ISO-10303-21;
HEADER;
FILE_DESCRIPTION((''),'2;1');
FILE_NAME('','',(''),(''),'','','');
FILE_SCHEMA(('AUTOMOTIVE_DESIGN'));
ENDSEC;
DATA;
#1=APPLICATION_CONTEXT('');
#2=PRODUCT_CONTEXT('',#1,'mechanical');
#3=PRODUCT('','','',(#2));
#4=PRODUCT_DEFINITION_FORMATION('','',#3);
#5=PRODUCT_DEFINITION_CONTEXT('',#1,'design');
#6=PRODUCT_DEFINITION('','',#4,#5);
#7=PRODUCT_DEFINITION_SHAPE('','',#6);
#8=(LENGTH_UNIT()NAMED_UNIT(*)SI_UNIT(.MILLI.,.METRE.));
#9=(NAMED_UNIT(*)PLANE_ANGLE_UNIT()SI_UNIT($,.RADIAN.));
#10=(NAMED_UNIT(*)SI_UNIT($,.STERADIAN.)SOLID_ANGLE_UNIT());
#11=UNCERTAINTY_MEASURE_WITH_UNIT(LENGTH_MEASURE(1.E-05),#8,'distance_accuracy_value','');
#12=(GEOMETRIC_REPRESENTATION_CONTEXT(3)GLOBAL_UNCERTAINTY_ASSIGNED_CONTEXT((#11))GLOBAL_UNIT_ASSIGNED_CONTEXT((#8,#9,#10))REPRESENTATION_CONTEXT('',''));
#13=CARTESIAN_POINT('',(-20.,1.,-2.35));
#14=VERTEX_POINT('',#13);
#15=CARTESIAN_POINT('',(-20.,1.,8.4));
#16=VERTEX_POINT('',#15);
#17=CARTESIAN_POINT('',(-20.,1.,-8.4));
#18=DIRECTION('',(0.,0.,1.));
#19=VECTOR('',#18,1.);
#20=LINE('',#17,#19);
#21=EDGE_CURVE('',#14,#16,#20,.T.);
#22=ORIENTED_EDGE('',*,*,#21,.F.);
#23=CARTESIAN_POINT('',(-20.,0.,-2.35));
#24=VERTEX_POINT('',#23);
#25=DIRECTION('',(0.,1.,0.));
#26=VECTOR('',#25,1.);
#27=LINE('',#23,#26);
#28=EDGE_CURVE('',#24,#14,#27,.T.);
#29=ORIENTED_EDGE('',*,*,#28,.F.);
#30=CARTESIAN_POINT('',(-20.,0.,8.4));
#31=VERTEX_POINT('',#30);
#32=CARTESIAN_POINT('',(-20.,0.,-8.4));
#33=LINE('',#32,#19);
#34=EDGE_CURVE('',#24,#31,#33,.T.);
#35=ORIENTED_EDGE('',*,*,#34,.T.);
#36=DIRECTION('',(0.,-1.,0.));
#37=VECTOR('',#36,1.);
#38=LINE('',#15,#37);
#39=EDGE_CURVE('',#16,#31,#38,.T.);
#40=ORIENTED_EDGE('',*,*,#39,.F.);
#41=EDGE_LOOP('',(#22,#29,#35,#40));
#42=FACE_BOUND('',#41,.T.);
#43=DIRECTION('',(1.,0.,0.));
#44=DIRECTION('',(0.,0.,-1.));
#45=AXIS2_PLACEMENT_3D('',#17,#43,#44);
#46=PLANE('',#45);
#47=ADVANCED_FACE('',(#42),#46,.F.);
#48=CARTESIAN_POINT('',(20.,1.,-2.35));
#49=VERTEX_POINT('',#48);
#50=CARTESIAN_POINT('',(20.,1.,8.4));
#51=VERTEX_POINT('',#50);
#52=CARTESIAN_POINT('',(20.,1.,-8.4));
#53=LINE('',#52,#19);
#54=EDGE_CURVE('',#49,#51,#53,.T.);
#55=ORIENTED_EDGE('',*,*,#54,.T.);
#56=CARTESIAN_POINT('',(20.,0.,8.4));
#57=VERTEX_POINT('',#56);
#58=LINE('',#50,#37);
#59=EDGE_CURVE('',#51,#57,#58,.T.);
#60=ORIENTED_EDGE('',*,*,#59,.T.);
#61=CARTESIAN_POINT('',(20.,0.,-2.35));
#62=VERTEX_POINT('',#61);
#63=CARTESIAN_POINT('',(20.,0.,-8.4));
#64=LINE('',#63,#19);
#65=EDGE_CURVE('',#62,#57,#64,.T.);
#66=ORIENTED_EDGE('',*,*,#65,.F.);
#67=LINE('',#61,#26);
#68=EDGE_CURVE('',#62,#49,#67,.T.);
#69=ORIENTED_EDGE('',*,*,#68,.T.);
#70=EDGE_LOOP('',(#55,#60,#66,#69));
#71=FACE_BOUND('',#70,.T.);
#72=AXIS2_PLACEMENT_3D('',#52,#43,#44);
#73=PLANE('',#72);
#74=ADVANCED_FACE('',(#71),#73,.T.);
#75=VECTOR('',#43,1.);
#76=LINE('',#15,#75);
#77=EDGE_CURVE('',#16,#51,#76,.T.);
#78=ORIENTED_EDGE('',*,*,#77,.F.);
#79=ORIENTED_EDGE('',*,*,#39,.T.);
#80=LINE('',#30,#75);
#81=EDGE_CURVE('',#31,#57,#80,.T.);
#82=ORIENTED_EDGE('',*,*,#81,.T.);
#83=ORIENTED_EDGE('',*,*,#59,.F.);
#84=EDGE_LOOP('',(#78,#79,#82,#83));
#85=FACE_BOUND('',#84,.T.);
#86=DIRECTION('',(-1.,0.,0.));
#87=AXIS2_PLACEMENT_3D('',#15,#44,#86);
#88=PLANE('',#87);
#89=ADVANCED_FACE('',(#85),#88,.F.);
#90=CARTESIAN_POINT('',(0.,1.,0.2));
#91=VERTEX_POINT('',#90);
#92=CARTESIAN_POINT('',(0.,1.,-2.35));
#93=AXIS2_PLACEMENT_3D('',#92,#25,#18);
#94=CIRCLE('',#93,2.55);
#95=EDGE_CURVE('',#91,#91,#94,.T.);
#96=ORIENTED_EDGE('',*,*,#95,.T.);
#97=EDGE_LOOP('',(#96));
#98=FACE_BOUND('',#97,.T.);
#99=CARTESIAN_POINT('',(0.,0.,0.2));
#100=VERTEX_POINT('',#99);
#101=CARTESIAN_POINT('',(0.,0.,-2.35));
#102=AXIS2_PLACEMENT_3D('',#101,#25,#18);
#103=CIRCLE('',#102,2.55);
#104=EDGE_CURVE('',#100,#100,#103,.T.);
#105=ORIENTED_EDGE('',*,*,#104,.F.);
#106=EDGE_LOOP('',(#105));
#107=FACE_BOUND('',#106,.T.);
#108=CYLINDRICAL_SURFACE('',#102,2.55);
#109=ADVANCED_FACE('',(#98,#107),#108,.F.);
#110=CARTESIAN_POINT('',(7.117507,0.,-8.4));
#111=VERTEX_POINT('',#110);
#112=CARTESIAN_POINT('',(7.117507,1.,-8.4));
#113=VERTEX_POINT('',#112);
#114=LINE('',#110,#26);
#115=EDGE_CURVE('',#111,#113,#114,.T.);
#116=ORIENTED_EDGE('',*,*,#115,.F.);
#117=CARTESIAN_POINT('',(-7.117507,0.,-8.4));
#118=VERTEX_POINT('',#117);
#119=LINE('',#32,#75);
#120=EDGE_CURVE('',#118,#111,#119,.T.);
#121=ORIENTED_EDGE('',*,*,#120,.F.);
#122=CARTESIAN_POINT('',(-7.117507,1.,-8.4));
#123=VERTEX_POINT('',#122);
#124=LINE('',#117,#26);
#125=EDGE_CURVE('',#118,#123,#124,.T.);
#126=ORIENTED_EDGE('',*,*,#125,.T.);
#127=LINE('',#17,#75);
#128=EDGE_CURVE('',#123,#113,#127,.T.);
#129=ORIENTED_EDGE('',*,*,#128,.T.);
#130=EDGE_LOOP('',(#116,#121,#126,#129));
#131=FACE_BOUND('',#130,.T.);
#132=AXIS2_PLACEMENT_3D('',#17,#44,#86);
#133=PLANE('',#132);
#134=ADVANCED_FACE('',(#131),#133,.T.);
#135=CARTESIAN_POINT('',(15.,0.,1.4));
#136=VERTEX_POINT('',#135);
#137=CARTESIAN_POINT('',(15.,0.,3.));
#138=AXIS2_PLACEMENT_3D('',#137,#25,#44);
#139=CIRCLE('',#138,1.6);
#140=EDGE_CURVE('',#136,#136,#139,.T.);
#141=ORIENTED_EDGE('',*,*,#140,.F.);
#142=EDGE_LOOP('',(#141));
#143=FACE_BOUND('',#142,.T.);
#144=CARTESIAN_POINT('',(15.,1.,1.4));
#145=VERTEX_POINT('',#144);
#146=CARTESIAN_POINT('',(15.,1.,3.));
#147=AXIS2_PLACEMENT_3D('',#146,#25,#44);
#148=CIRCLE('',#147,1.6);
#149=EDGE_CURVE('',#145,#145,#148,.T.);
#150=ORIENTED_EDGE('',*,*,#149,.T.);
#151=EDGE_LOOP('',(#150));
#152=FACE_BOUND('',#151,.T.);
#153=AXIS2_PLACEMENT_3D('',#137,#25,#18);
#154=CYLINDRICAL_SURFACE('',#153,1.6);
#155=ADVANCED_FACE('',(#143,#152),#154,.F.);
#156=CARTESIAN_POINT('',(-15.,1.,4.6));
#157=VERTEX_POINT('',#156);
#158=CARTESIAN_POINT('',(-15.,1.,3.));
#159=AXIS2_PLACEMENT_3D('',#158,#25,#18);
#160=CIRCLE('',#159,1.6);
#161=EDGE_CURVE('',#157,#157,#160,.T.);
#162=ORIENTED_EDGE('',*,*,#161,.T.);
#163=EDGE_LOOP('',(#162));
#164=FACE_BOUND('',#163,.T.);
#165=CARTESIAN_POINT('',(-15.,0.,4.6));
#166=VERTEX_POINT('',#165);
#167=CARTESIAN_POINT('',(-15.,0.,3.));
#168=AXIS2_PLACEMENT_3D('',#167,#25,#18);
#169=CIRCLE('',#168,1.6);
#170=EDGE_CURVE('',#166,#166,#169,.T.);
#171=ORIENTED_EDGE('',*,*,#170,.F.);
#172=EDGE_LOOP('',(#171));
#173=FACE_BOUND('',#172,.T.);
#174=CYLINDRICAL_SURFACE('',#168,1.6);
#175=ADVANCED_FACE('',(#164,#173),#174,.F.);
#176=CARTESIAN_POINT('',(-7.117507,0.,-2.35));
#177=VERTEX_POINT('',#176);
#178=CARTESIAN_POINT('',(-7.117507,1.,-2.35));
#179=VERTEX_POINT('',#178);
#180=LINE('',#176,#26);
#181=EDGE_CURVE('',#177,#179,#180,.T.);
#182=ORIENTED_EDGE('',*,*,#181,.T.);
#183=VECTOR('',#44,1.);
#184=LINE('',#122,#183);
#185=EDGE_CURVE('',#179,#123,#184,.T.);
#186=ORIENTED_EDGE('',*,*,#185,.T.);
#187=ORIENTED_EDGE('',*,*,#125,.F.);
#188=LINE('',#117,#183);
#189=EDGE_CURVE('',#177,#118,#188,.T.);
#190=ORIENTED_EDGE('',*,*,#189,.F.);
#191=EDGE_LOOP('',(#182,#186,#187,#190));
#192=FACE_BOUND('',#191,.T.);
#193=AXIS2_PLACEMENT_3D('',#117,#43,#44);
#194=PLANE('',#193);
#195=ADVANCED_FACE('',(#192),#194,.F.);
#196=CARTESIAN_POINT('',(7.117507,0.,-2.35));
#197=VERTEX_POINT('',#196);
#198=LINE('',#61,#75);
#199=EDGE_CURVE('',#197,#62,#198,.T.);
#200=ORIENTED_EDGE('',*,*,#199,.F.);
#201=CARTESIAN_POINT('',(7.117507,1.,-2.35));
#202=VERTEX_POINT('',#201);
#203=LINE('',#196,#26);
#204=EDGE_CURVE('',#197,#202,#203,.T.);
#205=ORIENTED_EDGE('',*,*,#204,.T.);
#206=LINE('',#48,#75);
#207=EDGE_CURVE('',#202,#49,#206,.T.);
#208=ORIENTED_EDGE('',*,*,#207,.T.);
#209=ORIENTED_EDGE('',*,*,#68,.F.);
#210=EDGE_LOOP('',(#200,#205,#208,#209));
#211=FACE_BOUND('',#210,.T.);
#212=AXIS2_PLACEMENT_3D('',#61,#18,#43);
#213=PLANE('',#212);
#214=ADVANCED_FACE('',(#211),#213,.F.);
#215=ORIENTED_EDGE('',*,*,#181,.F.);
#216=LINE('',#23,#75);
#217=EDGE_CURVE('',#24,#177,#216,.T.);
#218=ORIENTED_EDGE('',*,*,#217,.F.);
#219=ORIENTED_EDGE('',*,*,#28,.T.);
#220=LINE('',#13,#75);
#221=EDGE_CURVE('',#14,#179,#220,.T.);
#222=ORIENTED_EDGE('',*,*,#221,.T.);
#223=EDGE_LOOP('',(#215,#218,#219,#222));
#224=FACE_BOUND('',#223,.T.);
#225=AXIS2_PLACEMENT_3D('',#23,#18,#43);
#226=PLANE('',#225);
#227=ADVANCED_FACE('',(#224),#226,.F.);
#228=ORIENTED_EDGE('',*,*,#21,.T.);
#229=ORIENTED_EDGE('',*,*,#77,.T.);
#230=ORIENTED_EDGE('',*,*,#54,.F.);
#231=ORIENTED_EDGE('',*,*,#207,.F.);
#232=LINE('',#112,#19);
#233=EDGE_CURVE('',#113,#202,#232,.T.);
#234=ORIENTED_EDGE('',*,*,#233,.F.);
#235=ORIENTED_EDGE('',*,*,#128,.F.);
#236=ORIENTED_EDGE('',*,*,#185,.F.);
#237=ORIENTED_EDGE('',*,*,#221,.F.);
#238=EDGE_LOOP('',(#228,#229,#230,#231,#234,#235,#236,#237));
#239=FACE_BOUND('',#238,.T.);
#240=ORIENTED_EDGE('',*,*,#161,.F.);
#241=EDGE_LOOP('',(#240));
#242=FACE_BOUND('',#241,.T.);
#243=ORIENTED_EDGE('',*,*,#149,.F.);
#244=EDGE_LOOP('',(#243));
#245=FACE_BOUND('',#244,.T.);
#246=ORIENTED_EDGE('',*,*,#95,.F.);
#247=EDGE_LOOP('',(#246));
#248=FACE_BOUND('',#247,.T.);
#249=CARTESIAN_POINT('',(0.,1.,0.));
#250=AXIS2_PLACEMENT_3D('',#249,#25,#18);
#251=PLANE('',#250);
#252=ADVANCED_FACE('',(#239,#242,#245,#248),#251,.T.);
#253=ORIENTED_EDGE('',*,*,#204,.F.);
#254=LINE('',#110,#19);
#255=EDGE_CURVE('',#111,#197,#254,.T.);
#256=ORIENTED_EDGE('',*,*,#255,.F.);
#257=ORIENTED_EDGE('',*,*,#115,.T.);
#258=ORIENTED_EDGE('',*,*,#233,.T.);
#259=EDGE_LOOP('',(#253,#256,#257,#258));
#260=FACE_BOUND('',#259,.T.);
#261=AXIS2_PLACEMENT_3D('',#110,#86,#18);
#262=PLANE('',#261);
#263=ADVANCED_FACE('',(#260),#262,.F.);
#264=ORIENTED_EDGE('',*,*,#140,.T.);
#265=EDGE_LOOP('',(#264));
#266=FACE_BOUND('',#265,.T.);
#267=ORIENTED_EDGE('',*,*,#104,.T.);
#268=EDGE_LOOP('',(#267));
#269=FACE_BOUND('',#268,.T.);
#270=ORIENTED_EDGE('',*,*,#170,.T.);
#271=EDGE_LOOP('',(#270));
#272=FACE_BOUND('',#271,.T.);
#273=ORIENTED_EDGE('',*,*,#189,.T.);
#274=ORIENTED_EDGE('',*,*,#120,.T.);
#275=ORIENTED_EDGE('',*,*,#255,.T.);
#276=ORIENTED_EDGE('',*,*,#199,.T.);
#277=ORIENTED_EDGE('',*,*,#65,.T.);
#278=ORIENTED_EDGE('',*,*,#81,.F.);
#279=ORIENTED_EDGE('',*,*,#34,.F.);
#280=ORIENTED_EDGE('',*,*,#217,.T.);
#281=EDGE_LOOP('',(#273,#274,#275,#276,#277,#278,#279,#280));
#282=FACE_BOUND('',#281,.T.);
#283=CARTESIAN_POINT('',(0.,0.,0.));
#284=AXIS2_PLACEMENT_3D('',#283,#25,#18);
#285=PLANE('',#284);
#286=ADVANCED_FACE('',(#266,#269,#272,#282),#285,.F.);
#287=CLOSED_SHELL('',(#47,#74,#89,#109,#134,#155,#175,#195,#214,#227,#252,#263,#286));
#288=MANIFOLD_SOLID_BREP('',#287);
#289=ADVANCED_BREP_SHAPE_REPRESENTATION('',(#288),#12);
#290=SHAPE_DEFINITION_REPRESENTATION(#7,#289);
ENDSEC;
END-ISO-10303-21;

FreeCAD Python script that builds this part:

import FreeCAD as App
import Part
import Sketcher
Q = App.Units.Quantity


def add_polygon(sketch, points):
    """Adds a closed chain of lines whose ends are joined by coincident constraints."""
    first, n = sketch.GeometryCount, len(points)
    for a, b in zip(points, points[1:] + points[:1]):
        sketch.addGeometry(Part.LineSegment(App.Vector(*a, 0), App.Vector(*b, 0)), False)
    for i in range(n):
        sketch.addConstraint(Sketcher.Constraint("Coincident", first + i, 2, first + (i + 1) % n, 1))

doc = App.newDocument("Part")
body = doc.addObject("PartDesign::Body", "Body")

# Sketch on XZ plane
sketch1 = body.newObject("Sketcher::SketchObject", "Sketch")
sketch1.AttachmentSupport = (doc.getObject("XZ_Plane"), [""])
sketch1.MapMode = "FlatFace"
add_polygon(sketch1, [(-20, -8), (-20, 8), (20, 8), (20, -8)])  # lines 0-3
sketch1.addConstraint([
    Sketcher.Constraint("Vertical", 0),
    Sketcher.Constraint("Horizontal", 1),
    Sketcher.Constraint("Vertical", 2),
    Sketcher.Constraint("Horizontal", 3),
    Sketcher.Constraint("Symmetric", 0, 2, 2, 2, -1, 1),
    Sketcher.Constraint("DistanceX", 1, 1, 1, 2, Q("40 mm")),
    Sketcher.Constraint("DistanceY", 0, 1, 0, 2, Q("16.8 mm")),
])
pad1 = body.newObject("PartDesign::Pad", "Pad")
pad1.Profile = sketch1
pad1.Length = 1
pad1.Reversed = True

# Sketch on XZ plane
sketch2 = body.newObject("Sketcher::SketchObject", "Sketch001")
sketch2.AttachmentSupport = (doc.getObject("XZ_Plane"), [""])
sketch2.MapMode = "FlatFace"
sketch2.AttachmentOffset = App.Placement(App.Vector(0, 0, -1), App.Rotation())
sketch2.addGeometry(Part.Circle(App.Vector(-15, 3, 0), App.Vector(0, 0, 1), 1.6), False)  # 0
sketch2.addGeometry(Part.Circle(App.Vector(15, 3, 0), App.Vector(0, 0, 1), 1.6), False)  # 1
sketch2.addGeometry(Part.Circle(App.Vector(0, -2.4, 0), App.Vector(0, 0, 1), 2.5), False)  # 2
add_polygon(sketch2, [(7.1, -8.4), (7.1, -2.4), (20, -2.4), (20, -8.4)])  # lines 3-6
add_polygon(sketch2, [(-20, -8.4), (-20, -2.4), (-7.1, -2.4), (-7.1, -8.4)])  # lines 7-10
sketch2.addConstraint([
    Sketcher.Constraint("Vertical", 3),
    Sketcher.Constraint("Horizontal", 4),
    Sketcher.Constraint("Vertical", 5),
    Sketcher.Constraint("Horizontal", 6),
    Sketcher.Constraint("Vertical", 7),
    Sketcher.Constraint("Horizontal", 8),
    Sketcher.Constraint("Vertical", 9),
    Sketcher.Constraint("Horizontal", 10),
    Sketcher.Constraint("Equal", 0, 1),
    Sketcher.Constraint("Symmetric", 0, 3, 1, 3, -2),
    Sketcher.Constraint("Symmetric", 4, 2, 7, 2, -2),
    Sketcher.Constraint("Symmetric", 6, 2, 9, 2, -2),
    Sketcher.Constraint("PointOnObject", 2, 3, -2),
    Sketcher.Constraint("Horizontal", 2, 3, 3, 2),
    Sketcher.Constraint("Diameter", 0, Q("3.2 mm")),
    Sketcher.Constraint("Diameter", 2, Q("5.1 mm")),
    Sketcher.Constraint("DistanceX", 0, 3, -1, 1, Q("15 mm")),
    Sketcher.Constraint("DistanceY", -1, 1, 0, 3, Q("3 mm")),
    Sketcher.Constraint("DistanceX", -1, 1, 4, 2, Q("20 mm")),
    Sketcher.Constraint("DistanceY", 3, 1, 3, 2, Q("6.05 mm")),
    Sketcher.Constraint("DistanceY", 5, 2, -1, 1, Q("8.4 mm")),
    Sketcher.Constraint("DistanceX", 4, 1, 4, 2, Q("12.882493 mm")),
])
pocket1 = body.newObject("PartDesign::Pocket", "Pocket")
pocket1.Profile = sketch2
pocket1.Type = "ThroughAll"
pocket1.Reversed = True

doc.recompute()
